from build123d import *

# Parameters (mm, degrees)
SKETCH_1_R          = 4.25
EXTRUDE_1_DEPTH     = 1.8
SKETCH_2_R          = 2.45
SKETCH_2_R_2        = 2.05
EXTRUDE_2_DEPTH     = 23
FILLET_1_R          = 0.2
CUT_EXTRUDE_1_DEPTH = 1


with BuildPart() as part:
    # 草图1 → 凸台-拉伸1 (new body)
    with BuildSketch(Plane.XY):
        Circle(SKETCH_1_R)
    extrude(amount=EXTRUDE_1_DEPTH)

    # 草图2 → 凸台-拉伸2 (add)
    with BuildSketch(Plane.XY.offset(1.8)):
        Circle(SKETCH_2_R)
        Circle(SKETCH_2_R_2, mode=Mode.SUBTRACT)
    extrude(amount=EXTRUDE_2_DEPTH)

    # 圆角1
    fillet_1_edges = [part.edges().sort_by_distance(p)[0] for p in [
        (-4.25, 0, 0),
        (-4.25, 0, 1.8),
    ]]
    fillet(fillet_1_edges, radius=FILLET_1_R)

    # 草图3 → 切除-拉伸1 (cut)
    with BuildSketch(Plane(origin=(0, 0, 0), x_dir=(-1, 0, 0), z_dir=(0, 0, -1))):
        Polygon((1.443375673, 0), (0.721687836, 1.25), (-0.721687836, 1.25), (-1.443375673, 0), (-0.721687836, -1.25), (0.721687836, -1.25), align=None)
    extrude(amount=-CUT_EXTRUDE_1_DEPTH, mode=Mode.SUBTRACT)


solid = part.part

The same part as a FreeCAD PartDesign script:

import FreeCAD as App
import Part
import Sketcher

V = App.Vector
Q = App.Units.Quantity


def edges_at(feature, points):
    """Names of the edges that pass closest to the given points."""
    edges = feature.Shape.Edges
    near = lambda p: min(range(len(edges)), key=lambda i: edges[i].distToShape(Part.Vertex(*p))[0])
    return sorted({f"Edge{near(p) + 1}" for p in points})

doc = App.newDocument("Part")
body = doc.addObject("PartDesign::Body", "Body")

# Sketch on XY plane
sketch1 = body.newObject("Sketcher::SketchObject", "Sketch")
sketch1.AttachmentSupport = (doc.getObject("XY_Plane"), [""])
sketch1.MapMode = "FlatFace"
sketch1.addGeometry(Part.Circle(V(0, 0, 0), V(0, 0, 1), 4.2), False)
sketch1.addConstraint([
    Sketcher.Constraint("Coincident", 0, 3, -1, 1),
    Sketcher.Constraint("Diameter", 0, Q("8.5 mm")),
])
pad1 = body.newObject("PartDesign::Pad", "Pad")
pad1.Profile = sketch1
pad1.Length = 1.8

# Sketch on XY plane
sketch2 = body.newObject("Sketcher::SketchObject", "Sketch001")
sketch2.AttachmentSupport = (doc.getObject("XY_Plane"), [""])
sketch2.MapMode = "FlatFace"
sketch2.AttachmentOffset = App.Placement(V(0, 0, 1.8), App.Rotation())
sketch2.addGeometry([
    Part.Circle(V(0, 0, 0), V(0, 0, 1), 2.5),
    Part.Circle(V(0, 0, 0), V(0, 0, 1), 2),
], False)
sketch2.addConstraint([
    Sketcher.Constraint("Coincident", 0, 3, -1, 1),
    Sketcher.Constraint("Coincident", 1, 3, -1, 1),
    Sketcher.Constraint("Diameter", 0, Q("4.9 mm")),
    Sketcher.Constraint("Diameter", 1, Q("4.1 mm")),
])
pad2 = body.newObject("PartDesign::Pad", "Pad001")
pad2.Profile = sketch2
pad2.Length = 23
doc.recompute()

fillet = body.newObject("PartDesign::Fillet", "Fillet")
fillet.Base = (pad2, edges_at(pad2, [(-4.25, 0, 0), (-4.25, 0, 1.8)]))
fillet.Radius = 0.2

# Sketch on XY plane
sketch3 = body.newObject("Sketcher::SketchObject", "Sketch002")
sketch3.AttachmentSupport = (doc.getObject("XY_Plane"), [""])
sketch3.MapMode = "FlatFace"
sketch3.addGeometry([
    Part.LineSegment(V(-1.4, 0, 0), V(-0.7, 1.2, 0)),  # 0
    Part.LineSegment(V(-0.7, 1.2, 0), V(0.7, 1.2, 0)),  # 1
    Part.LineSegment(V(0.7, 1.2, 0), V(1.4, 0, 0)),  # 2
    Part.LineSegment(V(1.4, 0, 0), V(0.7, -1.2, 0)),  # 3
    Part.LineSegment(V(0.7, -1.2, 0), V(-0.7, -1.2, 0)),  # 4
    Part.LineSegment(V(-0.7, -1.2, 0), V(-1.4, 0, 0)),  # 5
], False)
sketch3.addConstraint([
    Sketcher.Constraint("Coincident", 0, 2, 1, 1),
    Sketcher.Constraint("Coincident", 1, 2, 2, 1),
    Sketcher.Constraint("Coincident", 2, 2, 3, 1),
    Sketcher.Constraint("Coincident", 3, 2, 4, 1),
    Sketcher.Constraint("Coincident", 4, 2, 5, 1),
    Sketcher.Constraint("Coincident", 5, 2, 0, 1),
    Sketcher.Constraint("Horizontal", 1),
    Sketcher.Constraint("Horizontal", 4),
    Sketcher.Constraint("Symmetric", 0, 2, 3, 2, -1, 1),
    Sketcher.Constraint("Symmetric", 2, 2, 5, 2, -1, 1),
    Sketcher.Constraint("PointOnObject", 2, 2, -1),
    Sketcher.Constraint("Parallel", 2, 5),
    Sketcher.Constraint("Vertical", 1, 2, 3, 2),
    Sketcher.Constraint("Angle", 0, Q("60 deg")),
    Sketcher.Constraint("DistanceY", 3, 2, 1, 2, Q("2.5 mm")),
    Sketcher.Constraint("DistanceX", 1, 1, 1, 2, Q("1.443376 mm")),
])
pocket1 = body.newObject("PartDesign::Pocket", "Pocket")
pocket1.Profile = sketch3
pocket1.Length = 1
pocket1.Reversed = True

doc.recompute()
